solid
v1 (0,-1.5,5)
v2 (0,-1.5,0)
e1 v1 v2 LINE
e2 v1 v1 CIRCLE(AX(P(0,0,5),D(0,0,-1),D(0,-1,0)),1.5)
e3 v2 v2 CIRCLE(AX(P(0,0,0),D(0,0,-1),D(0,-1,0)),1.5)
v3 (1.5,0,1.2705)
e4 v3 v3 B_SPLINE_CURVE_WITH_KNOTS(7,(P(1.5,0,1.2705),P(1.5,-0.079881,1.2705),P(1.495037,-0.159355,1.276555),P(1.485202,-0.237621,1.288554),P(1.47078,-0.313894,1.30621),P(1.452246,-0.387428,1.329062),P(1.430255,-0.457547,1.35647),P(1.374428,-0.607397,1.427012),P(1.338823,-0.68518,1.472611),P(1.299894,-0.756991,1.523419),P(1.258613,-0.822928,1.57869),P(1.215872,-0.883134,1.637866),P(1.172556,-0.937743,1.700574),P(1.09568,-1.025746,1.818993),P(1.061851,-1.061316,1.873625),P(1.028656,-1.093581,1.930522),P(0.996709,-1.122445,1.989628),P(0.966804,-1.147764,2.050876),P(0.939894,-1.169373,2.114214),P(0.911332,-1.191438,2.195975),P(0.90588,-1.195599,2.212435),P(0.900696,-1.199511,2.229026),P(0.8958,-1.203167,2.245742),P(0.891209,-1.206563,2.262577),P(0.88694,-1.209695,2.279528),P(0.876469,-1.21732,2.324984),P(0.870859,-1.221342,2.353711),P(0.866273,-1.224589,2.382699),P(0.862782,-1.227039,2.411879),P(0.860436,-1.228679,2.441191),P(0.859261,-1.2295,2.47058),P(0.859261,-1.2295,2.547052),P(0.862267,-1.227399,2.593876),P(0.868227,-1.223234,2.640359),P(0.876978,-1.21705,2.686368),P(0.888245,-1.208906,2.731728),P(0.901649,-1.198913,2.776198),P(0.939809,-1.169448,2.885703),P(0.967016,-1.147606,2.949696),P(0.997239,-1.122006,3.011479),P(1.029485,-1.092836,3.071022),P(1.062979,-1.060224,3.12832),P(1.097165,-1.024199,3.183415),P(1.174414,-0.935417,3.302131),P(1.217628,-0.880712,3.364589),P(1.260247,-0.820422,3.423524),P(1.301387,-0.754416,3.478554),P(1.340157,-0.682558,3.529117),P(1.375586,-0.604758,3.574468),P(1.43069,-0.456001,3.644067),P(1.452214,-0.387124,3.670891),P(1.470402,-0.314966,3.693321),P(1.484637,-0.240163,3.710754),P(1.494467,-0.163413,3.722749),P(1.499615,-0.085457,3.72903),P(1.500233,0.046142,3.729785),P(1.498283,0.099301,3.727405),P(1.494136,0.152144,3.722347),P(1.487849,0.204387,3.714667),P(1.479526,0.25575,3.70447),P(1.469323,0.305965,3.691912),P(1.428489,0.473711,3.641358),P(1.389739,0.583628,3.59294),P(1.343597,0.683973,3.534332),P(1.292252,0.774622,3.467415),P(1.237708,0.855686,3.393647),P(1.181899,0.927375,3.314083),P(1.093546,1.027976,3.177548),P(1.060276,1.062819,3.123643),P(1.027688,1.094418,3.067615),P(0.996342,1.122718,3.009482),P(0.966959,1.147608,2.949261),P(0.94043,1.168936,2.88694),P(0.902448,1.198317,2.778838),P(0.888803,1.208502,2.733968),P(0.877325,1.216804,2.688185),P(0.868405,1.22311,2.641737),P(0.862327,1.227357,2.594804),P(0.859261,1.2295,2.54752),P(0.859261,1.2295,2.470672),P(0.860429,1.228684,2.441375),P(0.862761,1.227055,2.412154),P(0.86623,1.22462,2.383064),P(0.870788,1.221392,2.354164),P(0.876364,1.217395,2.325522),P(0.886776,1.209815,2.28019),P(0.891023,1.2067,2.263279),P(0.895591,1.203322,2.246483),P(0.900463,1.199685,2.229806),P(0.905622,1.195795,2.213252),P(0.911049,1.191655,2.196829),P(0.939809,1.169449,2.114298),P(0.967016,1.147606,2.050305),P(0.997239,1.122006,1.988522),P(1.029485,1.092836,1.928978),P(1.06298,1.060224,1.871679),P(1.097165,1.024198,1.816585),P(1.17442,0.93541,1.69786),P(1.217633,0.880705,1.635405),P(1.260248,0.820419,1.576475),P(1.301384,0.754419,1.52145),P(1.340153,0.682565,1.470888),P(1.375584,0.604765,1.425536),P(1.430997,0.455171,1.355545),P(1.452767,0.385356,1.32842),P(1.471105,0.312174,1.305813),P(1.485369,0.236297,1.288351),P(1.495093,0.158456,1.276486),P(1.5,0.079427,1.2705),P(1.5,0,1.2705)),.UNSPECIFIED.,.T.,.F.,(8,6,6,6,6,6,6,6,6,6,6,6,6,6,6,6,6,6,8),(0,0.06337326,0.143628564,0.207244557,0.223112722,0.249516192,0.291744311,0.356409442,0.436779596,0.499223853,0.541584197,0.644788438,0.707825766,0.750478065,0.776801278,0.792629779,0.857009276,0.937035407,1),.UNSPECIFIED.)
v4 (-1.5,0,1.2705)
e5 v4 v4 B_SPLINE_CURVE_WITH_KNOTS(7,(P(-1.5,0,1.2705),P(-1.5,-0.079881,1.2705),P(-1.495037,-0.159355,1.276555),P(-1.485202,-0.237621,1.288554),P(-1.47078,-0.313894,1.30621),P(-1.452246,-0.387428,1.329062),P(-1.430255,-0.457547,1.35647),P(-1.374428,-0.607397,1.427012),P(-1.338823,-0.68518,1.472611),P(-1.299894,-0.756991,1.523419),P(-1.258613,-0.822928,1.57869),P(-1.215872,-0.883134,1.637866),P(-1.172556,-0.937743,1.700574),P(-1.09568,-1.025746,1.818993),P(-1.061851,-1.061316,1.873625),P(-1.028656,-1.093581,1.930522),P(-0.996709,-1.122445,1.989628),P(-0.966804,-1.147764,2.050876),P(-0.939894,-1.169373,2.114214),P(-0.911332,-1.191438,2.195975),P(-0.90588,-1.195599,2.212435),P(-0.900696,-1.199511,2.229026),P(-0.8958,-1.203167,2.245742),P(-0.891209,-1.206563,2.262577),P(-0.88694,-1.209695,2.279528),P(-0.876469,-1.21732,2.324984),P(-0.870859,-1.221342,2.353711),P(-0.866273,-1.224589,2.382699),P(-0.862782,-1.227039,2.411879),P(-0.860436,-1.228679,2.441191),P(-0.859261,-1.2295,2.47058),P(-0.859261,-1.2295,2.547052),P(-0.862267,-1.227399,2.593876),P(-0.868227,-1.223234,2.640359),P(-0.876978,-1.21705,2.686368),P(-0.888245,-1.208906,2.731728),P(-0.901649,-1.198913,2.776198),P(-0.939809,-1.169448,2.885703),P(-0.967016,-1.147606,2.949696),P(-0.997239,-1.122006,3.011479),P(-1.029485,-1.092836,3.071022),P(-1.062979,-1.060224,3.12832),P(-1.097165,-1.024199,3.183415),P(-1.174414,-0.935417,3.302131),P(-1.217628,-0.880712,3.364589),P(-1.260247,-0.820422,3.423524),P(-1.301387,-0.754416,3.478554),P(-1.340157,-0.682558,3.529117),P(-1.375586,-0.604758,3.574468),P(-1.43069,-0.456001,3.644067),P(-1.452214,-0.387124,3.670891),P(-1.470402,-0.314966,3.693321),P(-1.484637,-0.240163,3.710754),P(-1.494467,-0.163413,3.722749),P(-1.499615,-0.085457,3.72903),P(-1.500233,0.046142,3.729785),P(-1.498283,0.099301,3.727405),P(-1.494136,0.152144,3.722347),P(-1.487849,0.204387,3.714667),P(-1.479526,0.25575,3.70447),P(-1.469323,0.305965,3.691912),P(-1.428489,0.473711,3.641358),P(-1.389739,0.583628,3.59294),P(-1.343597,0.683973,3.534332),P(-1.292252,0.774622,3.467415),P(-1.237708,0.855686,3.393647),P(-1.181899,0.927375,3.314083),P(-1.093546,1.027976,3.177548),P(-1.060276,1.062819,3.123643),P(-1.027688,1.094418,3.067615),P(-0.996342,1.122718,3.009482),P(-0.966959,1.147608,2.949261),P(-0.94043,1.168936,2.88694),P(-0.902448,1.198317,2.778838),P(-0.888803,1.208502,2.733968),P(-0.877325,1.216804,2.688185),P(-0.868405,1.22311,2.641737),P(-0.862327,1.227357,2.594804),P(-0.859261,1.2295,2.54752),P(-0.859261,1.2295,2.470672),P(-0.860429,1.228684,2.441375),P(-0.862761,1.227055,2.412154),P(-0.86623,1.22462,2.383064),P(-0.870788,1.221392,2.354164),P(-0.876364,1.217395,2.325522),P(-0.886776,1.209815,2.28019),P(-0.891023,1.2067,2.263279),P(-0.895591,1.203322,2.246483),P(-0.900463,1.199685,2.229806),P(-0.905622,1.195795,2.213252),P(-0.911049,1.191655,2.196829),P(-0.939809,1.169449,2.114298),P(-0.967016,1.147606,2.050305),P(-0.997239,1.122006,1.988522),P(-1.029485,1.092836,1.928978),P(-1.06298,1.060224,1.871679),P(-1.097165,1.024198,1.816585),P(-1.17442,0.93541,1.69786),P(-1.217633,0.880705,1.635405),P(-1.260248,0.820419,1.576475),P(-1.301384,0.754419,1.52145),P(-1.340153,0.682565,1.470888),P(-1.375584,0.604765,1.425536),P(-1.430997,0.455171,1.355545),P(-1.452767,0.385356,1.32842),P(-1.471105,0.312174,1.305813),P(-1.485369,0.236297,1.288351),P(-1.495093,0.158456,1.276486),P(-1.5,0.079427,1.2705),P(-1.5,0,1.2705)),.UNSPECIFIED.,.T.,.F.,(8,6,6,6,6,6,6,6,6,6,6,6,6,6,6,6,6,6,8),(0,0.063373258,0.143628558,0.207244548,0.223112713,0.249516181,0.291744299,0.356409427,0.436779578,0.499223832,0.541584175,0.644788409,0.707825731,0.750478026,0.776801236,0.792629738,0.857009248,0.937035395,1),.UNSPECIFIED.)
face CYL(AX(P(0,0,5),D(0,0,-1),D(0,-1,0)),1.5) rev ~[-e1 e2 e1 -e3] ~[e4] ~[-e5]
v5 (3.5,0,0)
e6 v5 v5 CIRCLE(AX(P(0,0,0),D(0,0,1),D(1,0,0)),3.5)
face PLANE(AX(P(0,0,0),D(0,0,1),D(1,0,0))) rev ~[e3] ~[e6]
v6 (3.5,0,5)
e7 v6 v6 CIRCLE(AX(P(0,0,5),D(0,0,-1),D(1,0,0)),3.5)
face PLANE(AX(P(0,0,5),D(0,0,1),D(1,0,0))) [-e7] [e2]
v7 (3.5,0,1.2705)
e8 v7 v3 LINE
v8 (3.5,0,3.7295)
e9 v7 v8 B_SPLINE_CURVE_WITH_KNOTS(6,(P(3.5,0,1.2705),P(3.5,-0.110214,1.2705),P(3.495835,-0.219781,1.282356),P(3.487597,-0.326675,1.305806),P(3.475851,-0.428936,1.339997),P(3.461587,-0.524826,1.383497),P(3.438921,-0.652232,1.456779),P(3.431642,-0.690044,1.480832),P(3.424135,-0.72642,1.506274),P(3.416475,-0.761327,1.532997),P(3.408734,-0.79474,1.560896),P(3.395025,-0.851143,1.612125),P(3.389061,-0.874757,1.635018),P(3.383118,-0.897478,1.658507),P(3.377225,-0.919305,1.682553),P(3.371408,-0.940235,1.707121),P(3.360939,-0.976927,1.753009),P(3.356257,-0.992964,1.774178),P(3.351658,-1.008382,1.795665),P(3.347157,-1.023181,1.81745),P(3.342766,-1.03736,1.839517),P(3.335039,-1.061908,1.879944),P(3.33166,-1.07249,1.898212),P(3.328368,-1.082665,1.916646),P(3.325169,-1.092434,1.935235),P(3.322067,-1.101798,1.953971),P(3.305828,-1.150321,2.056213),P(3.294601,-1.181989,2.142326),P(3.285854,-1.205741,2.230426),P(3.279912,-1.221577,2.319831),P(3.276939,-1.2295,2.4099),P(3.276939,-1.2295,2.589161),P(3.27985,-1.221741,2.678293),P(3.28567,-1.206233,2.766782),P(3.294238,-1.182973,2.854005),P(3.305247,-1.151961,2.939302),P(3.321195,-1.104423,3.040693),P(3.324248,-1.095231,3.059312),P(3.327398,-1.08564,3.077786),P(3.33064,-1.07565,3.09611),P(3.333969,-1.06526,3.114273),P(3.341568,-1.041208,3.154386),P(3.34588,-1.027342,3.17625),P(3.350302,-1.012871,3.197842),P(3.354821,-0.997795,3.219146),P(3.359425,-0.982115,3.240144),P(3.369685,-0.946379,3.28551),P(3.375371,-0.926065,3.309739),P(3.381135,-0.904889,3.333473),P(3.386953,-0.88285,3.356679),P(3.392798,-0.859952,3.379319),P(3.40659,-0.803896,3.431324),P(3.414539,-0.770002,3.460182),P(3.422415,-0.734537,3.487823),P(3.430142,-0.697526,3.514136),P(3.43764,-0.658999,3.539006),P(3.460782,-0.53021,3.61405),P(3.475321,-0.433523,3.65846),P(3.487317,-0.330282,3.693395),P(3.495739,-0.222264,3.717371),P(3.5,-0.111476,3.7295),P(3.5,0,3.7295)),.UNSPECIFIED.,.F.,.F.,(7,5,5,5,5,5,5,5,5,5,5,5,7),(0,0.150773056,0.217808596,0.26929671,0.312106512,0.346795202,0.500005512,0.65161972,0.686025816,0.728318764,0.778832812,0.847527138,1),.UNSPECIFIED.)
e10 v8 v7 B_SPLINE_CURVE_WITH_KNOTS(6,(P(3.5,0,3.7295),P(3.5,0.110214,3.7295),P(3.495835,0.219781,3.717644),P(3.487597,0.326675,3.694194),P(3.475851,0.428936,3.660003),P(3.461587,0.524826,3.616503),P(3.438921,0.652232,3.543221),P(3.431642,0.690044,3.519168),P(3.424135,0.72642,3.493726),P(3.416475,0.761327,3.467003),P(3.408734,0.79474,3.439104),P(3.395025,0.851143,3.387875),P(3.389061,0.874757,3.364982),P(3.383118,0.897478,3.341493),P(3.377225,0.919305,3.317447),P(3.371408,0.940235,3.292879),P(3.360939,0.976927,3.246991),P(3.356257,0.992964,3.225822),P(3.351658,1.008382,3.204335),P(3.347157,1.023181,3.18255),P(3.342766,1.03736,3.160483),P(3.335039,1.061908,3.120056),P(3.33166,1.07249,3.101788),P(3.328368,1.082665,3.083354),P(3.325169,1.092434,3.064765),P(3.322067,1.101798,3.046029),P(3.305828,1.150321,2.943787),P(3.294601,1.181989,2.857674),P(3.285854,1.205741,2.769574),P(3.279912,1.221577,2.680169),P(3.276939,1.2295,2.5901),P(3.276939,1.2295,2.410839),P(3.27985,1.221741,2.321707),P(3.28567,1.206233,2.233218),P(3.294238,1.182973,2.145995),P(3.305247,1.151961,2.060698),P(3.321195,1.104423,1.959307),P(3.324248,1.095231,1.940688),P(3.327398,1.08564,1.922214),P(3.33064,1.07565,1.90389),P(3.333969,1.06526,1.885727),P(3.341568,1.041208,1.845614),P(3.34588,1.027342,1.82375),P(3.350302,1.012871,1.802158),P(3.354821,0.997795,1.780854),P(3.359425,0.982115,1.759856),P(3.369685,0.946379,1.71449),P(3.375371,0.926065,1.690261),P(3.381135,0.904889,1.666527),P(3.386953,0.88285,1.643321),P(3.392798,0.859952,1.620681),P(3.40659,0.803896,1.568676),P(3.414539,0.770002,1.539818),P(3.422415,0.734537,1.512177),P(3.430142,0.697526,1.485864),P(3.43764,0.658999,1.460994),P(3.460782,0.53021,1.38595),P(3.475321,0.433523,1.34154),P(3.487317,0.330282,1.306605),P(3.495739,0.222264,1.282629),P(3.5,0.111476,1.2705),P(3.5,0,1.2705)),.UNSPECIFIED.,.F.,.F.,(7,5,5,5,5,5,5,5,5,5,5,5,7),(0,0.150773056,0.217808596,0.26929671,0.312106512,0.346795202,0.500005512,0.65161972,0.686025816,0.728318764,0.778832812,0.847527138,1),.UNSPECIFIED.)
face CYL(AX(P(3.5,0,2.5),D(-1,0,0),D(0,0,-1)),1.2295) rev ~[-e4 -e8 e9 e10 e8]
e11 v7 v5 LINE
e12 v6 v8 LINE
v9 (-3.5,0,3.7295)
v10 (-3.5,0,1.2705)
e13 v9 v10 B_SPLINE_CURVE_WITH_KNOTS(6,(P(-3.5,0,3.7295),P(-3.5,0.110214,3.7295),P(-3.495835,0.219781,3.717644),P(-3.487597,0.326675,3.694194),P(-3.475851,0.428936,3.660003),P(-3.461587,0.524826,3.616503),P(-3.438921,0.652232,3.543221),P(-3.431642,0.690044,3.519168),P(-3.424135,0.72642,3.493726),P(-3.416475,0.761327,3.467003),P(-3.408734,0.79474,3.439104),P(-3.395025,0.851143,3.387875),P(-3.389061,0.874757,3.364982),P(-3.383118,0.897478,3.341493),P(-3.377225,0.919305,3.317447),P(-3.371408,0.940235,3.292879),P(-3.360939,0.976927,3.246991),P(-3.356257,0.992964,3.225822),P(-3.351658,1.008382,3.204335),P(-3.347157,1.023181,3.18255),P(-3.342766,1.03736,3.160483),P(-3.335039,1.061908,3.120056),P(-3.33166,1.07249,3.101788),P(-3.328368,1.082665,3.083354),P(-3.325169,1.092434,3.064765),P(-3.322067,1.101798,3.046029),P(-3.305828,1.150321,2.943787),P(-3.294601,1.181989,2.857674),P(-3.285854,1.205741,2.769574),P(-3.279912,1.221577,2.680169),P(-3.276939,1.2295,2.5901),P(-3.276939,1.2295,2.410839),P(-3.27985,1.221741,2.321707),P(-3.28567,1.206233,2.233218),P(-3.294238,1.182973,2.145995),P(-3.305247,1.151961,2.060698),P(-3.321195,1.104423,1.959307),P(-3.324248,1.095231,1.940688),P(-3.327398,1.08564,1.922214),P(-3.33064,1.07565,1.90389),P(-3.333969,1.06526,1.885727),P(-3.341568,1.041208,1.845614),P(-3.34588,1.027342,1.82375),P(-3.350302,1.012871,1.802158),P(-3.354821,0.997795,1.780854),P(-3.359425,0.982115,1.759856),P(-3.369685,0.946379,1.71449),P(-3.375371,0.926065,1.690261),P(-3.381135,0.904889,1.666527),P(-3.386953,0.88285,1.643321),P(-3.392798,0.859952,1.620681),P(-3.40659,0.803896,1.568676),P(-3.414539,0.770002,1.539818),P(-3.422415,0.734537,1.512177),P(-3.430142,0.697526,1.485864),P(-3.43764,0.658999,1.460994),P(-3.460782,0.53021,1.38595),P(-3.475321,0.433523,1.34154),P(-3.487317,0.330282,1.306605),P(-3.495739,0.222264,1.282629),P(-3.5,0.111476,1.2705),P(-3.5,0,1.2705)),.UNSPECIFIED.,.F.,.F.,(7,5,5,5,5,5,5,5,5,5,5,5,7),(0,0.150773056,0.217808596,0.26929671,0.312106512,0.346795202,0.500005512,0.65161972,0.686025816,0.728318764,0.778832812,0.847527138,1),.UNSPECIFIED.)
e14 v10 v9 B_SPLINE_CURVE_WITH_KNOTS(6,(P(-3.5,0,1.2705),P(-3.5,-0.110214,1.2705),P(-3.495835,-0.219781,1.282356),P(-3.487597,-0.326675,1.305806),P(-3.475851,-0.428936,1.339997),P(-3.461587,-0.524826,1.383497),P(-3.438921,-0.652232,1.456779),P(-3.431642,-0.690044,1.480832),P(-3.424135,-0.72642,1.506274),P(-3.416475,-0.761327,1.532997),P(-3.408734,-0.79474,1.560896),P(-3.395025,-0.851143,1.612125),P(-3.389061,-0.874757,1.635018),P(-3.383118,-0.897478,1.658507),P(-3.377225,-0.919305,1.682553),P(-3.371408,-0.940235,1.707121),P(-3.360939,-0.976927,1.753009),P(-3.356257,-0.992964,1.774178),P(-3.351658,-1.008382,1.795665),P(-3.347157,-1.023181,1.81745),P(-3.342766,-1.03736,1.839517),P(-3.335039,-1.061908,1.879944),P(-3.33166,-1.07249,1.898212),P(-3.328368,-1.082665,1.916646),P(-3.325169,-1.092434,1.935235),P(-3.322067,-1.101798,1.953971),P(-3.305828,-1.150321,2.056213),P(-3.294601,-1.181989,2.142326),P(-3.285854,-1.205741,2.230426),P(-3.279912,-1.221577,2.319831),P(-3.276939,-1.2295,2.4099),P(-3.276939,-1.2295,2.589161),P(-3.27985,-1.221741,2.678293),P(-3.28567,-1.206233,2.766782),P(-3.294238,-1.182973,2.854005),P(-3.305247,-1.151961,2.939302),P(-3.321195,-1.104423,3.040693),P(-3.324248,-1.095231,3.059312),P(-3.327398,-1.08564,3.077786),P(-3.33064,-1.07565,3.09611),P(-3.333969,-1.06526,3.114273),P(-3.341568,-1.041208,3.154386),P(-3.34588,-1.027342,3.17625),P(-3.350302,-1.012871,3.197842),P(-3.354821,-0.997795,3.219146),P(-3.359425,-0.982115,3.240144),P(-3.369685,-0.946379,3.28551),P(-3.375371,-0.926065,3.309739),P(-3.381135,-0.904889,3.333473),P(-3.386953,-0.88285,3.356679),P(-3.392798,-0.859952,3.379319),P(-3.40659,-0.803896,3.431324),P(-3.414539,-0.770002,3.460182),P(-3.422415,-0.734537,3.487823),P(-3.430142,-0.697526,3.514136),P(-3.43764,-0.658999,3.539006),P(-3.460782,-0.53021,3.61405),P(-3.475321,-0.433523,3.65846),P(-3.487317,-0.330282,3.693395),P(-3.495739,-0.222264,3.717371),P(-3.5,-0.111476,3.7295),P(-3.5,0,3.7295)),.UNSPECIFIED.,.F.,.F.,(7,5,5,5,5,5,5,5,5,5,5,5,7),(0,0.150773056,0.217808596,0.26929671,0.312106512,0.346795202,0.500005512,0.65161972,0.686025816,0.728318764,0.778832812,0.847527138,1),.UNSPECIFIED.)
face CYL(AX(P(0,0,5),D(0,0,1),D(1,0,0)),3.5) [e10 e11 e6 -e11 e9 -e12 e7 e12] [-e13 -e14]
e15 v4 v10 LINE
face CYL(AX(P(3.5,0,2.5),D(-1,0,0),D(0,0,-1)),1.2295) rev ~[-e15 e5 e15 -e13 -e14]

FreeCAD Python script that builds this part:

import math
import FreeCAD as App
import Part
import Sketcher
from FreeCAD import Vector
Q = App.Units.Quantity

doc = App.newDocument("Part")
params = doc.addObject("Spreadsheet::Sheet", "Params")
for row, (alias, value) in enumerate([
    ("sketch1_width", "7 mm"),
    ("pad1_length", "5 mm"),
    ("hole_diameter", "2.459 mm"),
    ("sketch3_radius", "3.5 mm"),
    ("pocket1_length", "5 mm"),
    ("sketch4_diameter", "3 mm"),
    ("hole2_diameter", "3 mm"),
], start=1):
    params.set(f"A{row}", alias)
    params.set(f"B{row}", "=" + value)
    params.setAlias(f"B{row}", alias)

body = doc.addObject("PartDesign::Body", "Body")

sketch1 = body.newObject("Sketcher::SketchObject", "Sketch")
sketch1.AttachmentSupport = (doc.getObject("XY_Plane"), [""])
sketch1.MapMode = "FlatFace"
sketch1.addGeometry([
    Part.LineSegment(Vector(4, 4, 0), Vector(-4, 4, 0)),
    Part.LineSegment(Vector(-4, 4, 0), Vector(-4, -4, 0)),
    Part.LineSegment(Vector(-4, -4, 0), Vector(4, -4, 0)),
    Part.LineSegment(Vector(4, -4, 0), Vector(4, 4, 0)),
], False)
sketch1.addConstraint([
    Sketcher.Constraint("Coincident", 0, 2, 1, 1),
    Sketcher.Constraint("Coincident", 1, 2, 2, 1),
    Sketcher.Constraint("Coincident", 2, 2, 3, 1),
    Sketcher.Constraint("Coincident", 3, 2, 0, 1),
    Sketcher.Constraint("Horizontal", 0),
    Sketcher.Constraint("Vertical", 1),
    Sketcher.Constraint("Horizontal", 2),
    Sketcher.Constraint("Vertical", 3),
    Sketcher.Constraint("Symmetric", 0, 2, 2, 2, -1, 1),
    Sketcher.Constraint("Equal", 2, 1),
    Sketcher.Constraint("DistanceX", 0, 2, 0, 1, Q("7 mm")),
])
sketch1.setExpression("Constraints[10]", "Params.sketch1_width")
pad1 = body.newObject("PartDesign::Pad", "Pad")
pad1.Profile = sketch1
pad1.setExpression("Length", "Params.pad1_length")

sketch2 = body.newObject("Sketcher::SketchObject", "Sketch001")
sketch2.AttachmentSupport = (doc.getObject("YZ_Plane"), [""])
sketch2.MapMode = "FlatFace"
sketch2.AttachmentOffset = App.Placement(Vector(0, 0, 3.5), App.Rotation())
sketch2.addGeometry(Part.Circle(Vector(0, 2.5, 0), Vector(0, 0, 1), 1.2), False)
sketch2.addConstraint([
    Sketcher.Constraint("PointOnObject", 0, 3, -2),
    Sketcher.Constraint("Diameter", 0, Q("2.459 mm")),
    Sketcher.Constraint("DistanceY", -1, 1, 0, 3, Q("2.5 mm")),
])
doc.recompute()
hole = body.newObject("PartDesign::Hole", "Hole")
hole.Profile = sketch2
hole.ThreadType = "None"
hole.setExpression("Diameter", "Params.hole_diameter")
hole.DepthType = "ThroughAll"

sketch3 = body.newObject("Sketcher::SketchObject", "Sketch002")
sketch3.AttachmentSupport = (doc.getObject("XY_Plane"), [""])
sketch3.MapMode = "FlatFace"
sketch3.AttachmentOffset = App.Placement(Vector(0, 0, 5), App.Rotation())
sketch3.addGeometry([
    Part.LineSegment(Vector(3.5, 0, 0), Vector(3.5, 3.5, 0)),
    Part.LineSegment(Vector(3.5, 3.5, 0), Vector(0, 3.5, 0)),
    Part.ArcOfCircle(Part.Circle(Vector(0, 0, 0), Vector(0, 0, 1), 3.5), math.radians(0), math.radians(90)),
    Part.ArcOfCircle(Part.Circle(Vector(0, 0, 0), Vector(0, 0, 1), 3.5), math.radians(90), math.radians(180)),
    Part.LineSegment(Vector(0, 3.5, 0), Vector(-3.5, 3.5, 0)),
    Part.LineSegment(Vector(-3.5, 3.5, 0), Vector(-3.5, 0, 0)),
    Part.LineSegment(Vector(3.5, -3.5, 0), Vector(3.5, 0, 0)),
    Part.ArcOfCircle(Part.Circle(Vector(0, 0, 0), Vector(0, 0, 1), 3.5), math.radians(-90), math.radians(0)),
    Part.LineSegment(Vector(0, -3.5, 0), Vector(3.5, -3.5, 0)),
    Part.ArcOfCircle(Part.Circle(Vector(0, 0, 0), Vector(0, 0, 1), 3.5), math.radians(180), math.radians(270)),
    Part.LineSegment(Vector(-3.5, 0, 0), Vector(-3.5, -3.5, 0)),
    Part.LineSegment(Vector(-3.5, -3.5, 0), Vector(0, -3.5, 0)),
], False)
sketch3.addConstraint([
    Sketcher.Constraint("Coincident", 0, 2, 1, 1),
    Sketcher.Constraint("Tangent", 1, 2, 2, 2),
    Sketcher.Constraint("Tangent", 2, 1, 0, 1),
    Sketcher.Constraint("Tangent", 3, 1, 4, 1),
    Sketcher.Constraint("Coincident", 4, 2, 5, 1),
    Sketcher.Constraint("Tangent", 5, 2, 3, 2),
    Sketcher.Constraint("Tangent", 6, 2, 7, 2),
    Sketcher.Constraint("Tangent", 7, 1, 8, 1),
    Sketcher.Constraint("Coincident", 8, 2, 6, 1),
    Sketcher.Constraint("Tangent", 9, 1, 10, 1),
    Sketcher.Constraint("Coincident", 10, 2, 11, 1),
    Sketcher.Constraint("Tangent", 11, 2, 9, 2),
    Sketcher.Constraint("Vertical", 0),
    Sketcher.Constraint("Horizontal", 1),
    Sketcher.Constraint("Horizontal", 4),
    Sketcher.Constraint("Vertical", 5),
    Sketcher.Constraint("Vertical", 6),
    Sketcher.Constraint("Horizontal", 8),
    Sketcher.Constraint("Vertical", 10),
    Sketcher.Constraint("Horizontal", 11),
    Sketcher.Constraint("Coincident", 2, 3, -1, 1),
    Sketcher.Constraint("Coincident", 3, 3, -1, 1),
    Sketcher.Constraint("Coincident", 7, 3, -1, 1),
    Sketcher.Constraint("Coincident", 9, 3, -1, 1),
    Sketcher.Constraint("Equal", 2, 3),
    Sketcher.Constraint("Equal", 3, 7),
    Sketcher.Constraint("Equal", 7, 9),
    Sketcher.Constraint("Radius", 2, Q("3.5 mm")),
])
sketch3.setExpression("Constraints[27]", "Params.sketch3_radius")
pocket1 = body.newObject("PartDesign::Pocket", "Pocket")
pocket1.Profile = sketch3
pocket1.setExpression("Length", "Params.pocket1_length")

sketch4 = body.newObject("Sketcher::SketchObject", "Sketch003")
sketch4.AttachmentSupport = (doc.getObject("XY_Plane"), [""])
sketch4.MapMode = "FlatFace"
sketch4.AttachmentOffset = App.Placement(Vector(0, 0, 5), App.Rotation())
sketch4.addGeometry([
    Part.Circle(Vector(0, 0, 0), Vector(0, 0, 1), 1.5),
    Part.Circle(Vector(0, 0, 0), Vector(0, 0, 1), 1.5),
], False)
sketch4.addConstraint([
    Sketcher.Constraint("Coincident", 0, 3, -1, 1),
    Sketcher.Constraint("Coincident", 1, 3, -1, 1),
    Sketcher.Constraint("Equal", 0, 1),
    Sketcher.Constraint("Diameter", 0, Q("3 mm")),
])
sketch4.setExpression("Constraints[3]", "Params.sketch4_diameter")
doc.recompute()
hole2 = body.newObject("PartDesign::Hole", "Hole001")
hole2.Profile = sketch4
hole2.ThreadType = "None"
hole2.setExpression("Diameter", "Params.hole2_diameter")
hole2.DepthType = "ThroughAll"

doc.recompute()
